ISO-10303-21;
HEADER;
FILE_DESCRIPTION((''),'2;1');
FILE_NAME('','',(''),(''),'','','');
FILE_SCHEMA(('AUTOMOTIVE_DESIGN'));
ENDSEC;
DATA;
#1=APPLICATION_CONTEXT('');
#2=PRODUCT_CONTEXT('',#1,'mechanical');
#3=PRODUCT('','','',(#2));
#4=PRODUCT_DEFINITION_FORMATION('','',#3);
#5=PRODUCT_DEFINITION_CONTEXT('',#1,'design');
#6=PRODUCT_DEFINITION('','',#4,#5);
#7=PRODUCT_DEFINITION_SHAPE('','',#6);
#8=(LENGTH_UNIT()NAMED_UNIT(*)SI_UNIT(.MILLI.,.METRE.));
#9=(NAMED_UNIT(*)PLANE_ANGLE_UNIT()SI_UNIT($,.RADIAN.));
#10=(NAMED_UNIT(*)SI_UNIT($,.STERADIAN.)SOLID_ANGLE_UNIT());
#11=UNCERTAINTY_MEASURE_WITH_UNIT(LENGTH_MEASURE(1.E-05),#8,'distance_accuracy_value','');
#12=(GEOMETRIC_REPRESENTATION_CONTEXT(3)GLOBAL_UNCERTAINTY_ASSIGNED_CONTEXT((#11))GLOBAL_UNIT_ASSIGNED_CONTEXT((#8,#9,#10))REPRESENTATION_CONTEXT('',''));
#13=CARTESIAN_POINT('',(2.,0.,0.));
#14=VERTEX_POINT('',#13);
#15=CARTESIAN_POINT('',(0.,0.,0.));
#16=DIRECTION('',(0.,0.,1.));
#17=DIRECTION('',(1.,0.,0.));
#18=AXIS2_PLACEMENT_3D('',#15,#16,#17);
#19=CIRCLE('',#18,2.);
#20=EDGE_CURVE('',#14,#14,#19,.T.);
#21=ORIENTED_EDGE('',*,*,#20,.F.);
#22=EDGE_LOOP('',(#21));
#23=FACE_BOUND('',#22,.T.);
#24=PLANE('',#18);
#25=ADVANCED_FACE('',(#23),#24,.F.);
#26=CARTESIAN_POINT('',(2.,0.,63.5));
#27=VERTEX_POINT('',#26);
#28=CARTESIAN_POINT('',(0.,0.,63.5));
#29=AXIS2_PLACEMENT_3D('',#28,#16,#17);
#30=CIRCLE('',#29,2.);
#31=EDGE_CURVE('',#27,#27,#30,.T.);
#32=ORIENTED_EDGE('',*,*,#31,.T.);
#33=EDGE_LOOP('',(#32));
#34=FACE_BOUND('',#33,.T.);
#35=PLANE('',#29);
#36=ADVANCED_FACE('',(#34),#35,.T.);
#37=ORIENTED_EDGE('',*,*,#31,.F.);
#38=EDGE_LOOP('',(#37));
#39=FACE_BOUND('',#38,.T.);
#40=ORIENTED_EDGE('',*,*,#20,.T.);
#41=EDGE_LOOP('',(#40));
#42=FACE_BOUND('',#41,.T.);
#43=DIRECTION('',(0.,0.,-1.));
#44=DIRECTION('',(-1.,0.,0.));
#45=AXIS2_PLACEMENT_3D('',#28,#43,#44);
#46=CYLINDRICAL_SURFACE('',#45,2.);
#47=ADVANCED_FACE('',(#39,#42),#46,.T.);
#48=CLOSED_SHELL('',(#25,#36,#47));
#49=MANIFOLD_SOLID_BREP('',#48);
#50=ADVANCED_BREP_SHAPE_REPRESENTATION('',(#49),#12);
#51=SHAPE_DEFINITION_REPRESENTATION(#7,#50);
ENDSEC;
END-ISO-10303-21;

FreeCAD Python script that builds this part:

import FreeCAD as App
import Part
import Sketcher
from FreeCAD import Vector
Q = App.Units.Quantity

doc = App.newDocument("Part")
body = doc.addObject("PartDesign::Body", "Body")

# Sketch on XY plane
sketch1 = body.newObject("Sketcher::SketchObject", "Sketch")
sketch1.AttachmentSupport = (doc.getObject("XY_Plane"), [""])
sketch1.MapMode = "FlatFace"
sketch1.addGeometry(Part.Circle(Vector(0, 0, 0), Vector(0, 0, 1), 2), False)
sketch1.addConstraint([
    Sketcher.Constraint("Coincident", 0, 3, -1, 1),
    Sketcher.Constraint("Diameter", 0, Q("4 mm")),
])
pad1 = body.newObject("PartDesign::Pad", "Pad")
pad1.Profile = sketch1
pad1.Length = 63.5

doc.recompute()
